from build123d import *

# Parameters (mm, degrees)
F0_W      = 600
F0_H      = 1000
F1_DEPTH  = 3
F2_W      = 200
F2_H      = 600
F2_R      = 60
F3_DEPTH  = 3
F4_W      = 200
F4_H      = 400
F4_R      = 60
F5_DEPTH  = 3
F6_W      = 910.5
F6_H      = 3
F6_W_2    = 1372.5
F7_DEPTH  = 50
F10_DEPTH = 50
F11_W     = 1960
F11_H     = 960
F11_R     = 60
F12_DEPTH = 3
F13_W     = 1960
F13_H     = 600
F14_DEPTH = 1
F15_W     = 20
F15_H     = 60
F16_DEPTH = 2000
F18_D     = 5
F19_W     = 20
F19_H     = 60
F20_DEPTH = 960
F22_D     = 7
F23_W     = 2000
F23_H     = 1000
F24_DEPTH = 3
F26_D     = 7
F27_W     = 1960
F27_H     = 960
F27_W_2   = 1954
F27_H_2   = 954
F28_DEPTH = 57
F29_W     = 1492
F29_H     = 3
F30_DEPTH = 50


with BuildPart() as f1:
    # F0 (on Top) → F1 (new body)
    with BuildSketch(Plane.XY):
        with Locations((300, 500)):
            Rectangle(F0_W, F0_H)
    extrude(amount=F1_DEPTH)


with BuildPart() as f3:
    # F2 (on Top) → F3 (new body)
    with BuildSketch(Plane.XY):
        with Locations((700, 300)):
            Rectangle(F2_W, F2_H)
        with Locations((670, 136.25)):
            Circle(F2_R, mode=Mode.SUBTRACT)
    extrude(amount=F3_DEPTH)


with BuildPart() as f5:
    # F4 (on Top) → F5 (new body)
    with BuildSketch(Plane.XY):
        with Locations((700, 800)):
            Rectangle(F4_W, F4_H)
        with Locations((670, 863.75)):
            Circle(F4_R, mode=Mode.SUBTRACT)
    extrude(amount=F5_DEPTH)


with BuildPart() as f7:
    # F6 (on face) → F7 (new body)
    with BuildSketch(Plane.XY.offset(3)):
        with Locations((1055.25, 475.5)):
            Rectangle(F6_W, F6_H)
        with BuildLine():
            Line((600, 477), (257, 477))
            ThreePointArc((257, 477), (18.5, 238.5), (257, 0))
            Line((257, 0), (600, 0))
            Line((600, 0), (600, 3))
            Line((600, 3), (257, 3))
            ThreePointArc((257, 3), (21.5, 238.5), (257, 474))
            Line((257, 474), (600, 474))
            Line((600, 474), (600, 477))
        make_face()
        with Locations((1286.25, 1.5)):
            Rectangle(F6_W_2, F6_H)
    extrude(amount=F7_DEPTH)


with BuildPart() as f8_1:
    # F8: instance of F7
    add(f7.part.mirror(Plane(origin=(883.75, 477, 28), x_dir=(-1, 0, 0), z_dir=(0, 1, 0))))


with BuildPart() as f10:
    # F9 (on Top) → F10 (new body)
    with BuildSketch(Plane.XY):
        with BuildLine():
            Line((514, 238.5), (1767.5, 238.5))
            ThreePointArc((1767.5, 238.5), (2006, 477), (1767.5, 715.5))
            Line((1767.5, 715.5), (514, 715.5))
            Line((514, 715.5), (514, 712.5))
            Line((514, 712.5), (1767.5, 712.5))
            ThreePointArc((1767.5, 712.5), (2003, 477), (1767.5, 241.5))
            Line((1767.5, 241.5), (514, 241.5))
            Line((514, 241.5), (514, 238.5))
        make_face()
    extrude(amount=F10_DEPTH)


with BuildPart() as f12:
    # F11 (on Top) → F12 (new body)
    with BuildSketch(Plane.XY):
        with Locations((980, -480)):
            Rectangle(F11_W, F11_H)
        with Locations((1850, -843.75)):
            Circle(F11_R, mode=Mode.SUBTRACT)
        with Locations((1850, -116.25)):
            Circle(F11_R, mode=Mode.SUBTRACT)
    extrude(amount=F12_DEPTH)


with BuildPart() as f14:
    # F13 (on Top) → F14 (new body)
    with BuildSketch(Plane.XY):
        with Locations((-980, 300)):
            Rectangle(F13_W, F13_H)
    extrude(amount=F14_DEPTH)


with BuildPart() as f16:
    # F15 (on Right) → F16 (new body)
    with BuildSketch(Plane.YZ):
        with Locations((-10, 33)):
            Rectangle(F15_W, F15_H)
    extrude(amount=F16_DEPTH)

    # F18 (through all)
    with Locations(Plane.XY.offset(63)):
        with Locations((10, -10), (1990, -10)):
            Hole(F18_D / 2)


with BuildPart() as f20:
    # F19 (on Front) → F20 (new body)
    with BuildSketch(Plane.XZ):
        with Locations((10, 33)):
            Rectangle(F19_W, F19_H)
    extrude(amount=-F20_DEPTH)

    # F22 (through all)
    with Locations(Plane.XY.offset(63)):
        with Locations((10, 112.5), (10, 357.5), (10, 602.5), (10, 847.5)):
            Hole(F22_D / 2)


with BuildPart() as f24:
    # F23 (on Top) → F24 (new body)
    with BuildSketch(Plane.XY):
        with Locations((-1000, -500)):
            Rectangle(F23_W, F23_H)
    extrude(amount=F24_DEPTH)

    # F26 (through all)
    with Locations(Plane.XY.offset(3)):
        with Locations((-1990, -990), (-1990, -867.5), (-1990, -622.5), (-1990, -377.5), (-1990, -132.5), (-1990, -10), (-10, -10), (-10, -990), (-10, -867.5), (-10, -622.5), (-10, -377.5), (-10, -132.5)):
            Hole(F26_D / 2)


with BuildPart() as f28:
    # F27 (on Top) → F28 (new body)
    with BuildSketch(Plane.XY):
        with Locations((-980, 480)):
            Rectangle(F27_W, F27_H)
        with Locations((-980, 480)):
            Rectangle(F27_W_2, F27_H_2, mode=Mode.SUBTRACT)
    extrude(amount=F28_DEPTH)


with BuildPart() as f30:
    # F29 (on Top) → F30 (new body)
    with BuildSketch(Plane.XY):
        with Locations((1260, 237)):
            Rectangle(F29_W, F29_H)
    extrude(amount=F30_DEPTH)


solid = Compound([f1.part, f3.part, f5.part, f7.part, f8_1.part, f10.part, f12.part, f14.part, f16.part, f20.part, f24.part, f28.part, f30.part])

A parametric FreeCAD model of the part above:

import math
import FreeCAD as App
import Part
import Sketcher
from FreeCAD import Vector
Q = App.Units.Quantity


def add_polygon(sketch, points):
    """Adds a closed chain of lines whose ends are joined by coincident constraints."""
    first, n = sketch.GeometryCount, len(points)
    for a, b in zip(points, points[1:] + points[:1]):
        sketch.addGeometry(Part.LineSegment(App.Vector(*a, 0), App.Vector(*b, 0)), False)
    for i in range(n):
        sketch.addConstraint(Sketcher.Constraint("Coincident", first + i, 2, first + (i + 1) % n, 1))

doc = App.newDocument("Part")
body = doc.addObject("PartDesign::Body", "Body")

# Sketch on XY plane
sketch1 = doc.addObject("Sketcher::SketchObject", "Sketch")
body.addObject(sketch1)
sketch1.AttachmentSupport = (doc.XY_Plane, [""])
sketch1.MapMode = "FlatFace"
add_polygon(sketch1, [(0, 1000), (0, 0), (600, 0), (600, 1000)])  # lines 0-3
sketch1.addConstraint(Sketcher.Constraint("Vertical", 0))
sketch1.addConstraint(Sketcher.Constraint("Horizontal", 1))
sketch1.addConstraint(Sketcher.Constraint("Vertical", 2))
sketch1.addConstraint(Sketcher.Constraint("Horizontal", 3))
sketch1.addConstraint(Sketcher.Constraint("Coincident", 0, 2, -1, 1))
sketch1.addConstraint(Sketcher.Constraint("DistanceX", 1, 1, 1, 2, Q("600 mm")))
sketch1.addConstraint(Sketcher.Constraint("DistanceY", 0, 2, 0, 1, Q("1000 mm")))
pad1 = doc.addObject("PartDesign::Pad", "Pad")
body.addObject(pad1)
pad1.Profile = sketch1
pad1.Length = 3
body2 = doc.addObject("PartDesign::Body", "Body001")

# Sketch on XY plane
sketch2 = doc.addObject("Sketcher::SketchObject", "Sketch001")
body2.addObject(sketch2)
sketch2.AttachmentSupport = (doc.getObject("XY_Plane001"), [""])
sketch2.MapMode = "FlatFace"
add_polygon(sketch2, [(600, 600), (600, 0), (800, 0), (800, 600)])  # lines 0-3
sketch2.addGeometry(Part.Circle(Vector(670, 136.25, 0), Vector(0, 0, 1), 60), False)  # 4
sketch2.addConstraint(Sketcher.Constraint("Vertical", 0))
sketch2.addConstraint(Sketcher.Constraint("Horizontal", 1))
sketch2.addConstraint(Sketcher.Constraint("Vertical", 2))
sketch2.addConstraint(Sketcher.Constraint("Horizontal", 3))
sketch2.addConstraint(Sketcher.Constraint("PointOnObject", 0, 2, -1))
sketch2.addConstraint(Sketcher.Constraint("Diameter", 4, Q("120 mm")))
sketch2.addConstraint(Sketcher.Constraint("DistanceX", 1, 1, 1, 2, Q("200 mm")))
sketch2.addConstraint(Sketcher.Constraint("DistanceY", 0, 2, 0, 1, Q("600 mm")))
sketch2.addConstraint(Sketcher.Constraint("DistanceX", -1, 1, 4, 3, Q("670 mm")))
sketch2.addConstraint(Sketcher.Constraint("DistanceX", -1, 1, 0, 2, Q("600 mm")))
sketch2.addConstraint(Sketcher.Constraint("DistanceY", -1, 1, 4, 3, Q("136.25 mm")))
pad2 = doc.addObject("PartDesign::Pad", "Pad001")
body2.addObject(pad2)
pad2.Profile = sketch2
pad2.Length = 3
body3 = doc.addObject("PartDesign::Body", "Body002")

# Sketch on XY plane
sketch3 = doc.addObject("Sketcher::SketchObject", "Sketch002")
body3.addObject(sketch3)
sketch3.AttachmentSupport = (doc.getObject("XY_Plane002"), [""])
sketch3.MapMode = "FlatFace"
add_polygon(sketch3, [(600, 1000), (600, 600), (800, 600), (800, 1000)])  # lines 0-3
sketch3.addGeometry(Part.Circle(Vector(670, 863.75, 0), Vector(0, 0, 1), 60), False)  # 4
sketch3.addConstraint(Sketcher.Constraint("Vertical", 0))
sketch3.addConstraint(Sketcher.Constraint("Horizontal", 1))
sketch3.addConstraint(Sketcher.Constraint("Vertical", 2))
sketch3.addConstraint(Sketcher.Constraint("Horizontal", 3))
sketch3.addConstraint(Sketcher.Constraint("Diameter", 4, Q("120 mm")))
sketch3.addConstraint(Sketcher.Constraint("DistanceX", 1, 1, 1, 2, Q("200 mm")))
sketch3.addConstraint(Sketcher.Constraint("DistanceY", 0, 2, 0, 1, Q("400 mm")))
sketch3.addConstraint(Sketcher.Constraint("DistanceX", -1, 1, 4, 3, Q("670 mm")))
sketch3.addConstraint(Sketcher.Constraint("DistanceX", -1, 1, 0, 2, Q("600 mm")))
sketch3.addConstraint(Sketcher.Constraint("DistanceY", -1, 1, 0, 2, Q("600 mm")))
sketch3.addConstraint(Sketcher.Constraint("DistanceY", -1, 1, 4, 3, Q("863.75 mm")))
pad3 = doc.addObject("PartDesign::Pad", "Pad002")
body3.addObject(pad3)
pad3.Profile = sketch3
pad3.Length = 3
body4 = doc.addObject("PartDesign::Body", "Body003")

# Sketch on XY plane
sketch4 = doc.addObject("Sketcher::SketchObject", "Sketch003")
body4.addObject(sketch4)
sketch4.AttachmentSupport = (doc.getObject("XY_Plane003"), [""])
sketch4.MapMode = "FlatFace"
sketch4.AttachmentOffset = App.Placement(Vector(0, 0, 3), App.Rotation())
sketch4.addGeometry(Part.LineSegment(Vector(1510.5, 474, 0), Vector(1510.5, 477, 0)), False)
sketch4.addGeometry(Part.LineSegment(Vector(1510.5, 477, 0), Vector(257, 477, 0)), False)
sketch4.addGeometry(Part.ArcOfCircle(Part.Circle(Vector(257, 238.5, 0), Vector(0, 0, 1), 238.5), math.radians(90), math.radians(270)), False)
sketch4.addGeometry(Part.LineSegment(Vector(257, 0, 0), Vector(1972.5, 0, 0)), False)
sketch4.addGeometry(Part.LineSegment(Vector(1972.5, 0, 0), Vector(1972.5, 3, 0)), False)
sketch4.addGeometry(Part.LineSegment(Vector(1972.5, 3, 0), Vector(257, 3, 0)), False)
sketch4.addGeometry(Part.ArcOfCircle(Part.Circle(Vector(257, 238.5, 0), Vector(0, 0, 1), 235.5), math.radians(90), math.radians(270)), False)
sketch4.addGeometry(Part.LineSegment(Vector(257, 474, 0), Vector(1510.5, 474, 0)), False)
sketch4.addConstraint(Sketcher.Constraint("Coincident", 0, 2, 1, 1))
sketch4.addConstraint(Sketcher.Constraint("Tangent", 1, 2, 2, 1))
sketch4.addConstraint(Sketcher.Constraint("Tangent", 2, 2, 3, 1))
sketch4.addConstraint(Sketcher.Constraint("Coincident", 3, 2, 4, 1))
sketch4.addConstraint(Sketcher.Constraint("Coincident", 4, 2, 5, 1))
sketch4.addConstraint(Sketcher.Constraint("Tangent", 5, 2, 6, 2))
sketch4.addConstraint(Sketcher.Constraint("Tangent", 6, 1, 7, 1))
sketch4.addConstraint(Sketcher.Constraint("Coincident", 7, 2, 0, 1))
sketch4.addConstraint(Sketcher.Constraint("Vertical", 0))
sketch4.addConstraint(Sketcher.Constraint("Horizontal", 1))
sketch4.addConstraint(Sketcher.Constraint("Horizontal", 3))
sketch4.addConstraint(Sketcher.Constraint("Vertical", 4))
sketch4.addConstraint(Sketcher.Constraint("Horizontal", 5))
sketch4.addConstraint(Sketcher.Constraint("Horizontal", 7))
sketch4.addConstraint(Sketcher.Constraint("Coincident", 6, 3, 2, 3))
sketch4.addConstraint(Sketcher.Constraint("PointOnObject", 2, 2, -1))
sketch4.addConstraint(Sketcher.Constraint("Radius", 2, Q("238.5 mm")))
sketch4.addConstraint(Sketcher.Constraint("Radius", 6, Q("235.5 mm")))
sketch4.addConstraint(Sketcher.Constraint("DistanceX", 1, 2, 1, 1, Q("1253.5 mm")))
sketch4.addConstraint(Sketcher.Constraint("DistanceX", 3, 1, 3, 2, Q("1715.5 mm")))
sketch4.addConstraint(Sketcher.Constraint("DistanceX", -1, 1, 2, 3, Q("257 mm")))
pad4 = doc.addObject("PartDesign::Pad", "Pad003")
body4.addObject(pad4)
pad4.Profile = sketch4
pad4.Length = 50
body5 = doc.addObject("PartDesign::Body", "Body004")
doc.recompute()

mirroring = doc.addObject("Part::Mirroring", "Mirroring")
mirroring.Source = body4
mirroring.Base = Vector(883.75, 477, 28)
mirroring.Normal = Vector(0, 1, 0)
body5.BaseFeature = mirroring
doc.recompute()
body6 = doc.addObject("PartDesign::Body", "Body005")

# Sketch on XY plane
sketch5 = doc.addObject("Sketcher::SketchObject", "Sketch004")
body6.addObject(sketch5)
sketch5.AttachmentSupport = (doc.getObject("XY_Plane005"), [""])
sketch5.MapMode = "FlatFace"
sketch5.addGeometry(Part.LineSegment(Vector(514, 238.5, 0), Vector(1767.5, 238.5, 0)), False)
sketch5.addGeometry(Part.ArcOfCircle(Part.Circle(Vector(1767.5, 477, 0), Vector(0, 0, 1), 238.5), math.radians(-90), math.radians(90)), False)
sketch5.addGeometry(Part.LineSegment(Vector(1767.5, 715.5, 0), Vector(514, 715.5, 0)), False)
sketch5.addGeometry(Part.LineSegment(Vector(514, 715.5, 0), Vector(514, 712.5, 0)), False)
sketch5.addGeometry(Part.LineSegment(Vector(514, 712.5, 0), Vector(1767.5, 712.5, 0)), False)
sketch5.addGeometry(Part.ArcOfCircle(Part.Circle(Vector(1767.5, 477, 0), Vector(0, 0, 1), 235.5), math.radians(-90), math.radians(90)), False)
sketch5.addGeometry(Part.LineSegment(Vector(1767.5, 241.5, 0), Vector(514, 241.5, 0)), False)
sketch5.addGeometry(Part.LineSegment(Vector(514, 241.5, 0), Vector(514, 238.5, 0)), False)
sketch5.addConstraint(Sketcher.Constraint("Tangent", 0, 2, 1, 1))
sketch5.addConstraint(Sketcher.Constraint("Tangent", 1, 2, 2, 1))
sketch5.addConstraint(Sketcher.Constraint("Coincident", 2, 2, 3, 1))
sketch5.addConstraint(Sketcher.Constraint("Coincident", 3, 2, 4, 1))
sketch5.addConstraint(Sketcher.Constraint("Tangent", 4, 2, 5, 2))
sketch5.addConstraint(Sketcher.Constraint("Tangent", 5, 1, 6, 1))
sketch5.addConstraint(Sketcher.Constraint("Coincident", 6, 2, 7, 1))
sketch5.addConstraint(Sketcher.Constraint("Coincident", 7, 2, 0, 1))
sketch5.addConstraint(Sketcher.Constraint("Horizontal", 0))
sketch5.addConstraint(Sketcher.Constraint("Horizontal", 2))
sketch5.addConstraint(Sketcher.Constraint("Vertical", 3))
sketch5.addConstraint(Sketcher.Constraint("Horizontal", 4))
sketch5.addConstraint(Sketcher.Constraint("Horizontal", 6))
sketch5.addConstraint(Sketcher.Constraint("Vertical", 7))
sketch5.addConstraint(Sketcher.Constraint("Coincident", 5, 3, 1, 3))
sketch5.addConstraint(Sketcher.Constraint("Vertical", 3, 2, 6, 2))
sketch5.addConstraint(Sketcher.Constraint("Radius", 1, Q("238.5 mm")))
sketch5.addConstraint(Sketcher.Constraint("Radius", 5, Q("235.5 mm")))
sketch5.addConstraint(Sketcher.Constraint("DistanceX", 0, 1, 0, 2, Q("1253.5 mm")))
sketch5.addConstraint(Sketcher.Constraint("DistanceY", -1, 1, 1, 3, Q("477 mm")))
sketch5.addConstraint(Sketcher.Constraint("DistanceX", -1, 1, 2, 2, Q("514 mm")))
pad5 = doc.addObject("PartDesign::Pad", "Pad004")
body6.addObject(pad5)
pad5.Profile = sketch5
pad5.Length = 50
body7 = doc.addObject("PartDesign::Body", "Body006")

# Sketch on XY plane
sketch6 = doc.addObject("Sketcher::SketchObject", "Sketch005")
body7.addObject(sketch6)
sketch6.AttachmentSupport = (doc.getObject("XY_Plane006"), [""])
sketch6.MapMode = "FlatFace"
add_polygon(sketch6, [(0, 0), (0, -960), (1960, -960), (1960, 0)])  # lines 0-3
sketch6.addGeometry(Part.Circle(Vector(1850, -843.75, 0), Vector(0, 0, 1), 60), False)  # 4
sketch6.addGeometry(Part.Circle(Vector(1850, -116.25, 0), Vector(0, 0, 1), 60), False)  # 5
sketch6.addConstraint(Sketcher.Constraint("Vertical", 0))
sketch6.addConstraint(Sketcher.Constraint("Horizontal", 1))
sketch6.addConstraint(Sketcher.Constraint("Vertical", 2))
sketch6.addConstraint(Sketcher.Constraint("Horizontal", 3))
sketch6.addConstraint(Sketcher.Constraint("Coincident", 3, 2, -1, 1))
sketch6.addConstraint(Sketcher.Constraint("Equal", 4, 5))
sketch6.addConstraint(Sketcher.Constraint("Vertical", 4, 3, 5, 3))
sketch6.addConstraint(Sketcher.Constraint("Diameter", 4, Q("120 mm")))
sketch6.addConstraint(Sketcher.Constraint("DistanceX", 1, 1, 1, 2, Q("1960 mm")))
sketch6.addConstraint(Sketcher.Constraint("DistanceY", 0, 2, 0, 1, Q("960 mm")))
sketch6.addConstraint(Sketcher.Constraint("DistanceX", -1, 1, 4, 3, Q("1850 mm")))
sketch6.addConstraint(Sketcher.Constraint("DistanceY", 4, 3, 5, 3, Q("727.5 mm")))
sketch6.addConstraint(Sketcher.Constraint("DistanceY", 4, 3, -1, 1, Q("843.75 mm")))
pad6 = doc.addObject("PartDesign::Pad", "Pad005")
body7.addObject(pad6)
pad6.Profile = sketch6
pad6.Length = 3
body8 = doc.addObject("PartDesign::Body", "Body007")

# Sketch on XY plane
sketch7 = doc.addObject("Sketcher::SketchObject", "Sketch006")
body8.addObject(sketch7)
sketch7.AttachmentSupport = (doc.getObject("XY_Plane007"), [""])
sketch7.MapMode = "FlatFace"
add_polygon(sketch7, [(-1960, 600), (-1960, 0), (0, 0), (0, 600)])  # lines 0-3
sketch7.addConstraint(Sketcher.Constraint("Vertical", 0))
sketch7.addConstraint(Sketcher.Constraint("Horizontal", 1))
sketch7.addConstraint(Sketcher.Constraint("Vertical", 2))
sketch7.addConstraint(Sketcher.Constraint("Horizontal", 3))
sketch7.addConstraint(Sketcher.Constraint("Coincident", 1, 2, -1, 1))
sketch7.addConstraint(Sketcher.Constraint("DistanceX", 1, 1, 1, 2, Q("1960 mm")))
sketch7.addConstraint(Sketcher.Constraint("DistanceY", 0, 2, 0, 1, Q("600 mm")))
pad7 = doc.addObject("PartDesign::Pad", "Pad006")
body8.addObject(pad7)
pad7.Profile = sketch7
pad7.Length = 1
body9 = doc.addObject("PartDesign::Body", "Body008")

# Sketch on YZ plane
sketch8 = doc.addObject("Sketcher::SketchObject", "Sketch007")
body9.addObject(sketch8)
sketch8.AttachmentSupport = (doc.getObject("YZ_Plane008"), [""])
sketch8.MapMode = "FlatFace"
add_polygon(sketch8, [(-20, 63), (-20, 3), (0, 3), (0, 63)])  # lines 0-3
sketch8.addConstraint(Sketcher.Constraint("Vertical", 0))
sketch8.addConstraint(Sketcher.Constraint("Horizontal", 1))
sketch8.addConstraint(Sketcher.Constraint("Vertical", 2))
sketch8.addConstraint(Sketcher.Constraint("Horizontal", 3))
sketch8.addConstraint(Sketcher.Constraint("PointOnObject", 1, 2, -2))
sketch8.addConstraint(Sketcher.Constraint("DistanceX", 1, 1, 1, 2, Q("20 mm")))
sketch8.addConstraint(Sketcher.Constraint("DistanceY", 0, 2, 0, 1, Q("60 mm")))
sketch8.addConstraint(Sketcher.Constraint("DistanceY", -1, 1, 0, 2, Q("3 mm")))
pad8 = doc.addObject("PartDesign::Pad", "Pad007")
body9.addObject(pad8)
pad8.Profile = sketch8
pad8.Length = 2000

# Sketch on XY plane
sketch9 = doc.addObject("Sketcher::SketchObject", "Sketch008")
body9.addObject(sketch9)
sketch9.AttachmentSupport = (doc.getObject("XY_Plane008"), [""])
sketch9.MapMode = "FlatFace"
sketch9.AttachmentOffset = App.Placement(Vector(0, 0, 63), App.Rotation())
sketch9.addGeometry(Part.Circle(Vector(10, -10, 0), Vector(0, 0, 1), 2.5), False)
sketch9.addGeometry(Part.Circle(Vector(1990, -10, 0), Vector(0, 0, 1), 2.5), False)
sketch9.addConstraint(Sketcher.Constraint("Equal", 0, 1))
sketch9.addConstraint(Sketcher.Constraint("Horizontal", 0, 3, 1, 3))
sketch9.addConstraint(Sketcher.Constraint("Diameter", 0, Q("5 mm")))
sketch9.addConstraint(Sketcher.Constraint("DistanceX", -1, 1, 0, 3, Q("10 mm")))
sketch9.addConstraint(Sketcher.Constraint("DistanceY", 0, 3, -1, 1, Q("10 mm")))
sketch9.addConstraint(Sketcher.Constraint("DistanceX", -1, 1, 1, 3, Q("1990 mm")))
doc.recompute()
hole = doc.addObject("PartDesign::Hole", "Hole")
body9.addObject(hole)
hole.Profile = sketch9
hole.ThreadType = "None"
hole.Diameter = 5
hole.DepthType = "ThroughAll"
body10 = doc.addObject("PartDesign::Body", "Body009")

# Sketch on XZ plane
sketch10 = doc.addObject("Sketcher::SketchObject", "Sketch009")
body10.addObject(sketch10)
sketch10.AttachmentSupport = (doc.getObject("XZ_Plane009"), [""])
sketch10.MapMode = "FlatFace"
add_polygon(sketch10, [(0, 63), (0, 3), (20, 3), (20, 63)])  # lines 0-3
sketch10.addConstraint(Sketcher.Constraint("Vertical", 0))
sketch10.addConstraint(Sketcher.Constraint("Horizontal", 1))
sketch10.addConstraint(Sketcher.Constraint("Vertical", 2))
sketch10.addConstraint(Sketcher.Constraint("Horizontal", 3))
sketch10.addConstraint(Sketcher.Constraint("PointOnObject", 0, 2, -2))
sketch10.addConstraint(Sketcher.Constraint("DistanceX", 1, 1, 1, 2, Q("20 mm")))
sketch10.addConstraint(Sketcher.Constraint("DistanceY", 0, 2, 0, 1, Q("60 mm")))
sketch10.addConstraint(Sketcher.Constraint("DistanceY", -1, 1, 0, 2, Q("3 mm")))
pad9 = doc.addObject("PartDesign::Pad", "Pad008")
body10.addObject(pad9)
pad9.Profile = sketch10
pad9.Length = 960
pad9.Reversed = True

# Sketch on XY plane
sketch11 = doc.addObject("Sketcher::SketchObject", "Sketch010")
body10.addObject(sketch11)
sketch11.AttachmentSupport = (doc.getObject("XY_Plane009"), [""])
sketch11.MapMode = "FlatFace"
sketch11.AttachmentOffset = App.Placement(Vector(0, 0, 63), App.Rotation())
sketch11.addGeometry(Part.Circle(Vector(10, 112.5, 0), Vector(0, 0, 1), 3.5), False)
sketch11.addGeometry(Part.Circle(Vector(10, 357.5, 0), Vector(0, 0, 1), 3.5), False)
sketch11.addGeometry(Part.Circle(Vector(10, 602.5, 0), Vector(0, 0, 1), 3.5), False)
sketch11.addGeometry(Part.Circle(Vector(10, 847.5, 0), Vector(0, 0, 1), 3.5), False)
sketch11.addConstraint(Sketcher.Constraint("Equal", 0, 1))
sketch11.addConstraint(Sketcher.Constraint("Equal", 1, 2))
sketch11.addConstraint(Sketcher.Constraint("Equal", 2, 3))
sketch11.addConstraint(Sketcher.Constraint("Vertical", 0, 3, 1, 3))
sketch11.addConstraint(Sketcher.Constraint("Vertical", 1, 3, 2, 3))
sketch11.addConstraint(Sketcher.Constraint("Vertical", 2, 3, 3, 3))
sketch11.addConstraint(Sketcher.Constraint("Diameter", 0, Q("7 mm")))
sketch11.addConstraint(Sketcher.Constraint("DistanceX", -1, 1, 0, 3, Q("10 mm")))
sketch11.addConstraint(Sketcher.Constraint("DistanceY", 0, 3, 1, 3, Q("245 mm")))
sketch11.addConstraint(Sketcher.Constraint("DistanceY", 1, 3, 2, 3, Q("245 mm")))
sketch11.addConstraint(Sketcher.Constraint("DistanceY", 2, 3, 3, 3, Q("245 mm")))
sketch11.addConstraint(Sketcher.Constraint("DistanceY", -1, 1, 0, 3, Q("112.5 mm")))
doc.recompute()
hole2 = doc.addObject("PartDesign::Hole", "Hole001")
body10.addObject(hole2)
hole2.Profile = sketch11
hole2.ThreadType = "None"
hole2.Diameter = 7
hole2.DepthType = "ThroughAll"
body11 = doc.addObject("PartDesign::Body", "Body010")

# Sketch on XY plane
sketch12 = doc.addObject("Sketcher::SketchObject", "Sketch011")
body11.addObject(sketch12)
sketch12.AttachmentSupport = (doc.getObject("XY_Plane010"), [""])
sketch12.MapMode = "FlatFace"
add_polygon(sketch12, [(-2000, 0), (-2000, -1000), (0, -1000), (0, 0)])  # lines 0-3
sketch12.addConstraint(Sketcher.Constraint("Vertical", 0))
sketch12.addConstraint(Sketcher.Constraint("Horizontal", 1))
sketch12.addConstraint(Sketcher.Constraint("Vertical", 2))
sketch12.addConstraint(Sketcher.Constraint("Horizontal", 3))
sketch12.addConstraint(Sketcher.Constraint("Coincident", 2, 2, -1, 1))
sketch12.addConstraint(Sketcher.Constraint("DistanceX", 1, 1, 1, 2, Q("2000 mm")))
sketch12.addConstraint(Sketcher.Constraint("DistanceY", 0, 2, 0, 1, Q("1000 mm")))
pad10 = doc.addObject("PartDesign::Pad", "Pad009")
body11.addObject(pad10)
pad10.Profile = sketch12
pad10.Length = 3

# Sketch on XY plane
sketch13 = doc.addObject("Sketcher::SketchObject", "Sketch012")
body11.addObject(sketch13)
sketch13.AttachmentSupport = (doc.getObject("XY_Plane010"), [""])
sketch13.MapMode = "FlatFace"
sketch13.AttachmentOffset = App.Placement(Vector(0, 0, 3), App.Rotation())
sketch13.addGeometry(Part.Circle(Vector(-1990, -990, 0), Vector(0, 0, 1), 3.5), False)
sketch13.addGeometry(Part.Circle(Vector(-1990, -867.5, 0), Vector(0, 0, 1), 3.5), False)
sketch13.addGeometry(Part.Circle(Vector(-1990, -622.5, 0), Vector(0, 0, 1), 3.5), False)
sketch13.addGeometry(Part.Circle(Vector(-1990, -377.5, 0), Vector(0, 0, 1), 3.5), False)
sketch13.addGeometry(Part.Circle(Vector(-1990, -132.5, 0), Vector(0, 0, 1), 3.5), False)
sketch13.addGeometry(Part.Circle(Vector(-1990, -10, 0), Vector(0, 0, 1), 3.5), False)
sketch13.addGeometry(Part.Circle(Vector(-10, -10, 0), Vector(0, 0, 1), 3.5), False)
sketch13.addGeometry(Part.Circle(Vector(-10, -990, 0), Vector(0, 0, 1), 3.5), False)
sketch13.addGeometry(Part.Circle(Vector(-10, -867.5, 0), Vector(0, 0, 1), 3.5), False)
sketch13.addGeometry(Part.Circle(Vector(-10, -622.5, 0), Vector(0, 0, 1), 3.5), False)
sketch13.addGeometry(Part.Circle(Vector(-10, -377.5, 0), Vector(0, 0, 1), 3.5), False)
sketch13.addGeometry(Part.Circle(Vector(-10, -132.5, 0), Vector(0, 0, 1), 3.5), False)
sketch13.addConstraint(Sketcher.Constraint("Equal", 0, 1))
sketch13.addConstraint(Sketcher.Constraint("Equal", 1, 2))
sketch13.addConstraint(Sketcher.Constraint("Equal", 2, 3))
sketch13.addConstraint(Sketcher.Constraint("Equal", 3, 4))
sketch13.addConstraint(Sketcher.Constraint("Equal", 4, 5))
sketch13.addConstraint(Sketcher.Constraint("Equal", 5, 6))
sketch13.addConstraint(Sketcher.Constraint("Equal", 6, 7))
sketch13.addConstraint(Sketcher.Constraint("Equal", 7, 8))
sketch13.addConstraint(Sketcher.Constraint("Equal", 8, 9))
sketch13.addConstraint(Sketcher.Constraint("Equal", 9, 10))
sketch13.addConstraint(Sketcher.Constraint("Equal", 10, 11))
sketch13.addConstraint(Sketcher.Constraint("Horizontal", 5, 3, 6, 3))
sketch13.addConstraint(Sketcher.Constraint("Horizontal", 0, 3, 7, 3))
sketch13.addConstraint(Sketcher.Constraint("Horizontal", 1, 3, 8, 3))
sketch13.addConstraint(Sketcher.Constraint("Horizontal", 2, 3, 9, 3))
sketch13.addConstraint(Sketcher.Constraint("Horizontal", 3, 3, 10, 3))
sketch13.addConstraint(Sketcher.Constraint("Horizontal", 4, 3, 11, 3))
sketch13.addConstraint(Sketcher.Constraint("Vertical", 0, 3, 1, 3))
sketch13.addConstraint(Sketcher.Constraint("Vertical", 1, 3, 2, 3))
sketch13.addConstraint(Sketcher.Constraint("Vertical", 2, 3, 3, 3))
sketch13.addConstraint(Sketcher.Constraint("Vertical", 3, 3, 4, 3))
sketch13.addConstraint(Sketcher.Constraint("Vertical", 4, 3, 5, 3))
sketch13.addConstraint(Sketcher.Constraint("Vertical", 6, 3, 7, 3))
sketch13.addConstraint(Sketcher.Constraint("Vertical", 7, 3, 8, 3))
sketch13.addConstraint(Sketcher.Constraint("Vertical", 8, 3, 9, 3))
sketch13.addConstraint(Sketcher.Constraint("Vertical", 9, 3, 10, 3))
sketch13.addConstraint(Sketcher.Constraint("Vertical", 10, 3, 11, 3))
sketch13.addConstraint(Sketcher.Constraint("Diameter", 0, Q("7 mm")))
sketch13.addConstraint(Sketcher.Constraint("DistanceX", 0, 3, -1, 1, Q("1990 mm")))
sketch13.addConstraint(Sketcher.Constraint("DistanceY", 0, 3, -1, 1, Q("990 mm")))
sketch13.addConstraint(Sketcher.Constraint("DistanceY", 5, 3, -1, 1, Q("10 mm")))
sketch13.addConstraint(Sketcher.Constraint("DistanceX", 6, 3, -1, 1, Q("10 mm")))
sketch13.addConstraint(Sketcher.Constraint("DistanceY", 1, 3, 2, 3, Q("245 mm")))
sketch13.addConstraint(Sketcher.Constraint("DistanceY", 2, 3, 3, 3, Q("245 mm")))
sketch13.addConstraint(Sketcher.Constraint("DistanceY", 3, 3, 4, 3, Q("245 mm")))
sketch13.addConstraint(Sketcher.Constraint("DistanceY", 1, 3, -1, 1, Q("867.5 mm")))
doc.recompute()
hole3 = doc.addObject("PartDesign::Hole", "Hole002")
body11.addObject(hole3)
hole3.Profile = sketch13
hole3.ThreadType = "None"
hole3.Diameter = 7
hole3.DepthType = "ThroughAll"
body12 = doc.addObject("PartDesign::Body", "Body011")

# Sketch on XY plane
sketch14 = doc.addObject("Sketcher::SketchObject", "Sketch013")
body12.addObject(sketch14)
sketch14.AttachmentSupport = (doc.getObject("XY_Plane011"), [""])
sketch14.MapMode = "FlatFace"
add_polygon(sketch14, [(-1960, 960), (-1960, 0), (0, 0), (0, 960)])  # lines 0-3
add_polygon(sketch14, [(-3, 3), (-1957, 3), (-1957, 957), (-3, 957)])  # lines 4-7
sketch14.addConstraint(Sketcher.Constraint("Vertical", 0))
sketch14.addConstraint(Sketcher.Constraint("Horizontal", 1))
sketch14.addConstraint(Sketcher.Constraint("Vertical", 2))
sketch14.addConstraint(Sketcher.Constraint("Horizontal", 3))
sketch14.addConstraint(Sketcher.Constraint("Horizontal", 4))
sketch14.addConstraint(Sketcher.Constraint("Vertical", 5))
sketch14.addConstraint(Sketcher.Constraint("Horizontal", 6))
sketch14.addConstraint(Sketcher.Constraint("Vertical", 7))
sketch14.addConstraint(Sketcher.Constraint("Coincident", 1, 2, -1, 1))
sketch14.addConstraint(Sketcher.Constraint("DistanceX", 1, 1, 1, 2, Q("1960 mm")))
sketch14.addConstraint(Sketcher.Constraint("DistanceX", 4, 2, 4, 1, Q("1954 mm")))
sketch14.addConstraint(Sketcher.Constraint("DistanceY", 0, 2, 0, 1, Q("960 mm")))
sketch14.addConstraint(Sketcher.Constraint("DistanceY", 5, 1, 5, 2, Q("954 mm")))
sketch14.addConstraint(Sketcher.Constraint("DistanceX", 4, 2, -1, 1, Q("1957 mm")))
sketch14.addConstraint(Sketcher.Constraint("DistanceY", -1, 1, 4, 2, Q("3 mm")))
pad11 = doc.addObject("PartDesign::Pad", "Pad010")
body12.addObject(pad11)
pad11.Profile = sketch14
pad11.Length = 57
body13 = doc.addObject("PartDesign::Body", "Body012")

# Sketch on XY plane
sketch15 = doc.addObject("Sketcher::SketchObject", "Sketch014")
body13.addObject(sketch15)
sketch15.AttachmentSupport = (doc.getObject("XY_Plane012"), [""])
sketch15.MapMode = "FlatFace"
add_polygon(sketch15, [(514, 238.5), (514, 235.5), (2006, 235.5), (2006, 238.5)])  # lines 0-3
sketch15.addConstraint(Sketcher.Constraint("Vertical", 0))
sketch15.addConstraint(Sketcher.Constraint("Horizontal", 1))
sketch15.addConstraint(Sketcher.Constraint("Vertical", 2))
sketch15.addConstraint(Sketcher.Constraint("Horizontal", 3))
sketch15.addConstraint(Sketcher.Constraint("DistanceX", 1, 1, 1, 2, Q("1492 mm")))
sketch15.addConstraint(Sketcher.Constraint("DistanceY", 0, 2, 0, 1, Q("3 mm")))
sketch15.addConstraint(Sketcher.Constraint("DistanceX", -1, 1, 0, 2, Q("514 mm")))
sketch15.addConstraint(Sketcher.Constraint("DistanceY", -1, 1, 0, 2, Q("235.5 mm")))
pad12 = doc.addObject("PartDesign::Pad", "Pad011")
body13.addObject(pad12)
pad12.Profile = sketch15
pad12.Length = 50
mirroring.Visibility = False

doc.recompute()
